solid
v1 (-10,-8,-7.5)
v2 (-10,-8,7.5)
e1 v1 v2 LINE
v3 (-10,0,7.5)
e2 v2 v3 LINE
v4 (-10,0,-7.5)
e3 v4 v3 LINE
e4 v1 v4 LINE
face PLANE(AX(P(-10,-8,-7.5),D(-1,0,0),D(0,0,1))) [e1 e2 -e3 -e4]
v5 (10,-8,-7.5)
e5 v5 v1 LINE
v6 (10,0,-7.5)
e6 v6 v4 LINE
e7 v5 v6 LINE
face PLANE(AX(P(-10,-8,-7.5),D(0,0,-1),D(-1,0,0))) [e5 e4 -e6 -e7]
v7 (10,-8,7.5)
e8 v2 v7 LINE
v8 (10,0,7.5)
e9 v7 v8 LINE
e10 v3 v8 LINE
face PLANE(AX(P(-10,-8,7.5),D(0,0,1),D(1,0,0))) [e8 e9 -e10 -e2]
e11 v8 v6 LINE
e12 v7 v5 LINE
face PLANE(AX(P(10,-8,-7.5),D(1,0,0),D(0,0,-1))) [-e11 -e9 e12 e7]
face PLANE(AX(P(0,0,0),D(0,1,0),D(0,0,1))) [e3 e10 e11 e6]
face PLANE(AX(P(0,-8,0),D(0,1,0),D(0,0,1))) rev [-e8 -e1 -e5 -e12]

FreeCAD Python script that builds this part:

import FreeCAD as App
import Part
import Sketcher
from FreeCAD import Vector


def add_polygon(sketch, points):
    """Adds a closed chain of lines whose ends are joined by coincident constraints."""
    first, n = sketch.GeometryCount, len(points)
    for a, b in zip(points, points[1:] + points[:1]):
        sketch.addGeometry(Part.LineSegment(App.Vector(*a, 0), App.Vector(*b, 0)), False)
    for i in range(n):
        sketch.addConstraint(Sketcher.Constraint("Coincident", first + i, 2, first + (i + 1) % n, 1))

doc = App.newDocument("Part")
params = doc.addObject("Spreadsheet::Sheet", "Params")
for row, (alias, value) in enumerate([
    ("sketch1_width", "20 mm"),
    ("sketch1_height", "15 mm"),
    ("pad1_length", "8 mm"),
], start=1):
    params.set(f"A{row}", alias)
    params.set(f"B{row}", "=" + value)
    params.setAlias(f"B{row}", alias)

body = doc.addObject("PartDesign::Body", "Body")

# Sketch on XZ plane
sketch1 = body.newObject("Sketcher::SketchObject", "Sketch")
sketch1.AttachmentSupport = (doc.getObject("XZ_Plane"), [""])
sketch1.MapMode = "FlatFace"
add_polygon(sketch1, [(-10, -8), (-10, 8), (10, 8), (10, -8)])  # lines 0-3
sketch1.addConstraint([
    Sketcher.Constraint("Vertical", 0),
    Sketcher.Constraint("Horizontal", 1),
    Sketcher.Constraint("Vertical", 2),
    Sketcher.Constraint("Horizontal", 3),
    Sketcher.Constraint("Symmetric", 0, 2, 2, 2, -1, 1),
    Sketcher.Constraint("DistanceX", 1, 1, 1, 2, 20.0),
    Sketcher.Constraint("DistanceY", 0, 1, 0, 2, 15.0),
])
sketch1.setExpression("Constraints[9]", "Params.sketch1_width")
sketch1.setExpression("Constraints[10]", "Params.sketch1_height")
pad1 = body.newObject("PartDesign::Pad", "Pad")
pad1.Profile = sketch1
pad1.setExpression("Length", "Params.pad1_length")

doc.recompute()
